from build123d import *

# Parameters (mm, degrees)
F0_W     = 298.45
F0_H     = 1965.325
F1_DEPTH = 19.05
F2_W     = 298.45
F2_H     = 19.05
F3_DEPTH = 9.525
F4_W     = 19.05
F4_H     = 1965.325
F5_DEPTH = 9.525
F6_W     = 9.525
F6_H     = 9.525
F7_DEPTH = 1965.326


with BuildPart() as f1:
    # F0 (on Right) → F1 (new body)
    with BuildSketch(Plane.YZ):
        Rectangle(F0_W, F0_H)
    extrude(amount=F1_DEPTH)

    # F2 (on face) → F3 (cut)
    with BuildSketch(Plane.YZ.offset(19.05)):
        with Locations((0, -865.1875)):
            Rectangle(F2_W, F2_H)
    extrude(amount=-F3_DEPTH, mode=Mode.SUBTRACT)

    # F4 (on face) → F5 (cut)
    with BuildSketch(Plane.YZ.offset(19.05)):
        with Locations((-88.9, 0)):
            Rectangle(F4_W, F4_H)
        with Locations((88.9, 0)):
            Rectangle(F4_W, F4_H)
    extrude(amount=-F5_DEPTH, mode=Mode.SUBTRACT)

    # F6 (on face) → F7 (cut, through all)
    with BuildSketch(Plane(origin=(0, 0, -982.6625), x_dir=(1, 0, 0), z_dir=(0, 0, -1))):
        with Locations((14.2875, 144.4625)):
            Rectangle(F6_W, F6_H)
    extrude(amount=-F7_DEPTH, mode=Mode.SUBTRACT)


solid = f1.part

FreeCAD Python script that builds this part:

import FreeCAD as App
import Part
import Sketcher
from FreeCAD import Vector
Q = App.Units.Quantity

doc = App.newDocument("Part")
body = doc.addObject("PartDesign::Body", "Body")

sketch1 = body.newObject("Sketcher::SketchObject", "Sketch")
sketch1.AttachmentSupport = (doc.getObject("YZ_Plane"), [""])
sketch1.MapMode = "FlatFace"
sketch1.addGeometry(Part.LineSegment(Vector(-149, 983, 0), Vector(-149, -983, 0)), False)
sketch1.addGeometry(Part.LineSegment(Vector(-149, -983, 0), Vector(149, -983, 0)), False)
sketch1.addGeometry(Part.LineSegment(Vector(149, -983, 0), Vector(149, 983, 0)), False)
sketch1.addGeometry(Part.LineSegment(Vector(149, 983, 0), Vector(-149, 983, 0)), False)
sketch1.addConstraint(Sketcher.Constraint("Coincident", 0, 2, 1, 1))
sketch1.addConstraint(Sketcher.Constraint("Coincident", 1, 2, 2, 1))
sketch1.addConstraint(Sketcher.Constraint("Coincident", 2, 2, 3, 1))
sketch1.addConstraint(Sketcher.Constraint("Coincident", 3, 2, 0, 1))
sketch1.addConstraint(Sketcher.Constraint("Vertical", 0))
sketch1.addConstraint(Sketcher.Constraint("Horizontal", 1))
sketch1.addConstraint(Sketcher.Constraint("Vertical", 2))
sketch1.addConstraint(Sketcher.Constraint("Horizontal", 3))
sketch1.addConstraint(Sketcher.Constraint("Symmetric", 0, 2, 2, 2, -1, 1))
sketch1.addConstraint(Sketcher.Constraint("DistanceX", 1, 1, 1, 2, Q("11.75 in")))
sketch1.addConstraint(Sketcher.Constraint("DistanceY", 0, 2, 0, 1, Q("77.375 in")))
pad1 = body.newObject("PartDesign::Pad", "Pad")
pad1.Profile = sketch1
pad1.Length = Q("0.75 in")

sketch2 = body.newObject("Sketcher::SketchObject", "Sketch001")
sketch2.AttachmentSupport = (doc.getObject("YZ_Plane"), [""])
sketch2.MapMode = "FlatFace"
sketch2.AttachmentOffset = App.Placement(Vector(0, 0, 0.75 * 25.4), App.Rotation())
sketch2.addGeometry(Part.LineSegment(Vector(-149, -856, 0), Vector(-149, -875, 0)), False)
sketch2.addGeometry(Part.LineSegment(Vector(-149, -875, 0), Vector(149, -875, 0)), False)
sketch2.addGeometry(Part.LineSegment(Vector(149, -875, 0), Vector(149, -856, 0)), False)
sketch2.addGeometry(Part.LineSegment(Vector(149, -856, 0), Vector(-149, -856, 0)), False)
sketch2.addConstraint(Sketcher.Constraint("Coincident", 0, 2, 1, 1))
sketch2.addConstraint(Sketcher.Constraint("Coincident", 1, 2, 2, 1))
sketch2.addConstraint(Sketcher.Constraint("Coincident", 2, 2, 3, 1))
sketch2.addConstraint(Sketcher.Constraint("Coincident", 3, 2, 0, 1))
sketch2.addConstraint(Sketcher.Constraint("Vertical", 0))
sketch2.addConstraint(Sketcher.Constraint("Horizontal", 1))
sketch2.addConstraint(Sketcher.Constraint("Vertical", 2))
sketch2.addConstraint(Sketcher.Constraint("Horizontal", 3))
sketch2.addConstraint(Sketcher.Constraint("DistanceX", 1, 1, 1, 2, Q("11.75 in")))
sketch2.addConstraint(Sketcher.Constraint("DistanceY", 0, 2, 0, 1, Q("0.75 in")))
sketch2.addConstraint(Sketcher.Constraint("DistanceX", 0, 2, -1, 1, Q("5.875 in")))
sketch2.addConstraint(Sketcher.Constraint("DistanceY", 0, 2, -1, 1, Q("34.4375 in")))
pocket1 = body.newObject("PartDesign::Pocket", "Pocket")
pocket1.Profile = sketch2
pocket1.Length = Q("0.375 in")

sketch3 = body.newObject("Sketcher::SketchObject", "Sketch002")
sketch3.AttachmentSupport = (doc.getObject("YZ_Plane"), [""])
sketch3.MapMode = "FlatFace"
sketch3.AttachmentOffset = App.Placement(Vector(0, 0, 0.75 * 25.4), App.Rotation())
sketch3.addGeometry(Part.LineSegment(Vector(-98, 983, 0), Vector(-98, -983, 0)), False)
sketch3.addGeometry(Part.LineSegment(Vector(-98, -983, 0), Vector(-79, -983, 0)), False)
sketch3.addGeometry(Part.LineSegment(Vector(-79, -983, 0), Vector(-79, 983, 0)), False)
sketch3.addGeometry(Part.LineSegment(Vector(-79, 983, 0), Vector(-98, 983, 0)), False)
sketch3.addGeometry(Part.LineSegment(Vector(79, 983, 0), Vector(79, -983, 0)), False)
sketch3.addGeometry(Part.LineSegment(Vector(79, -983, 0), Vector(98, -983, 0)), False)
sketch3.addGeometry(Part.LineSegment(Vector(98, -983, 0), Vector(98, 983, 0)), False)
sketch3.addGeometry(Part.LineSegment(Vector(98, 983, 0), Vector(79, 983, 0)), False)
sketch3.addConstraint(Sketcher.Constraint("Coincident", 0, 2, 1, 1))
sketch3.addConstraint(Sketcher.Constraint("Coincident", 1, 2, 2, 1))
sketch3.addConstraint(Sketcher.Constraint("Coincident", 2, 2, 3, 1))
sketch3.addConstraint(Sketcher.Constraint("Coincident", 3, 2, 0, 1))
sketch3.addConstraint(Sketcher.Constraint("Coincident", 4, 2, 5, 1))
sketch3.addConstraint(Sketcher.Constraint("Coincident", 5, 2, 6, 1))
sketch3.addConstraint(Sketcher.Constraint("Coincident", 6, 2, 7, 1))
sketch3.addConstraint(Sketcher.Constraint("Coincident", 7, 2, 4, 1))
sketch3.addConstraint(Sketcher.Constraint("Vertical", 0))
sketch3.addConstraint(Sketcher.Constraint("Horizontal", 1))
sketch3.addConstraint(Sketcher.Constraint("Vertical", 2))
sketch3.addConstraint(Sketcher.Constraint("Horizontal", 3))
sketch3.addConstraint(Sketcher.Constraint("Vertical", 4))
sketch3.addConstraint(Sketcher.Constraint("Horizontal", 5))
sketch3.addConstraint(Sketcher.Constraint("Vertical", 6))
sketch3.addConstraint(Sketcher.Constraint("Horizontal", 7))
sketch3.addConstraint(Sketcher.Constraint("Symmetric", 2, 2, 4, 2, -1, 1))
sketch3.addConstraint(Sketcher.Constraint("Symmetric", 0, 2, 6, 2, -1, 1))
sketch3.addConstraint(Sketcher.Constraint("Horizontal", 1, 2, 4, 2))
sketch3.addConstraint(Sketcher.Constraint("DistanceX", 0, 2, 4, 2, Q("7 in")))
sketch3.addConstraint(Sketcher.Constraint("DistanceX", 1, 1, 1, 2, Q("0.75 in")))
sketch3.addConstraint(Sketcher.Constraint("DistanceY", 0, 2, 0, 1, Q("77.375 in")))
pocket2 = body.newObject("PartDesign::Pocket", "Pocket001")
pocket2.Profile = sketch3
pocket2.Length = Q("0.375 in")

sketch4 = body.newObject("Sketcher::SketchObject", "Sketch003")
sketch4.AttachmentSupport = (doc.getObject("XY_Plane"), [""])
sketch4.MapMode = "FlatFace"
sketch4.AttachmentOffset = App.Placement(Vector(0, 0, -38.6875 * 25.4), App.Rotation())
sketch4.addGeometry(Part.LineSegment(Vector(10, -149, 0), Vector(10, -140, 0)), False)
sketch4.addGeometry(Part.LineSegment(Vector(10, -140, 0), Vector(19, -140, 0)), False)
sketch4.addGeometry(Part.LineSegment(Vector(19, -140, 0), Vector(19, -149, 0)), False)
sketch4.addGeometry(Part.LineSegment(Vector(19, -149, 0), Vector(10, -149, 0)), False)
sketch4.addConstraint(Sketcher.Constraint("Coincident", 0, 2, 1, 1))
sketch4.addConstraint(Sketcher.Constraint("Coincident", 1, 2, 2, 1))
sketch4.addConstraint(Sketcher.Constraint("Coincident", 2, 2, 3, 1))
sketch4.addConstraint(Sketcher.Constraint("Coincident", 3, 2, 0, 1))
sketch4.addConstraint(Sketcher.Constraint("Vertical", 0))
sketch4.addConstraint(Sketcher.Constraint("Horizontal", 1))
sketch4.addConstraint(Sketcher.Constraint("Vertical", 2))
sketch4.addConstraint(Sketcher.Constraint("Horizontal", 3))
sketch4.addConstraint(Sketcher.Constraint("Equal", 3, 0))
sketch4.addConstraint(Sketcher.Constraint("DistanceY", 0, 2, -1, 1, Q("5.5 in")))
sketch4.addConstraint(Sketcher.Constraint("DistanceX", 1, 1, 1, 2, Q("0.375 in")))
sketch4.addConstraint(Sketcher.Constraint("DistanceX", -1, 1, 1, 2, Q("0.75 in")))
pocket3 = body.newObject("PartDesign::Pocket", "Pocket002")
pocket3.Profile = sketch4
pocket3.Type = "ThroughAll"
pocket3.Reversed = True

doc.recompute()
